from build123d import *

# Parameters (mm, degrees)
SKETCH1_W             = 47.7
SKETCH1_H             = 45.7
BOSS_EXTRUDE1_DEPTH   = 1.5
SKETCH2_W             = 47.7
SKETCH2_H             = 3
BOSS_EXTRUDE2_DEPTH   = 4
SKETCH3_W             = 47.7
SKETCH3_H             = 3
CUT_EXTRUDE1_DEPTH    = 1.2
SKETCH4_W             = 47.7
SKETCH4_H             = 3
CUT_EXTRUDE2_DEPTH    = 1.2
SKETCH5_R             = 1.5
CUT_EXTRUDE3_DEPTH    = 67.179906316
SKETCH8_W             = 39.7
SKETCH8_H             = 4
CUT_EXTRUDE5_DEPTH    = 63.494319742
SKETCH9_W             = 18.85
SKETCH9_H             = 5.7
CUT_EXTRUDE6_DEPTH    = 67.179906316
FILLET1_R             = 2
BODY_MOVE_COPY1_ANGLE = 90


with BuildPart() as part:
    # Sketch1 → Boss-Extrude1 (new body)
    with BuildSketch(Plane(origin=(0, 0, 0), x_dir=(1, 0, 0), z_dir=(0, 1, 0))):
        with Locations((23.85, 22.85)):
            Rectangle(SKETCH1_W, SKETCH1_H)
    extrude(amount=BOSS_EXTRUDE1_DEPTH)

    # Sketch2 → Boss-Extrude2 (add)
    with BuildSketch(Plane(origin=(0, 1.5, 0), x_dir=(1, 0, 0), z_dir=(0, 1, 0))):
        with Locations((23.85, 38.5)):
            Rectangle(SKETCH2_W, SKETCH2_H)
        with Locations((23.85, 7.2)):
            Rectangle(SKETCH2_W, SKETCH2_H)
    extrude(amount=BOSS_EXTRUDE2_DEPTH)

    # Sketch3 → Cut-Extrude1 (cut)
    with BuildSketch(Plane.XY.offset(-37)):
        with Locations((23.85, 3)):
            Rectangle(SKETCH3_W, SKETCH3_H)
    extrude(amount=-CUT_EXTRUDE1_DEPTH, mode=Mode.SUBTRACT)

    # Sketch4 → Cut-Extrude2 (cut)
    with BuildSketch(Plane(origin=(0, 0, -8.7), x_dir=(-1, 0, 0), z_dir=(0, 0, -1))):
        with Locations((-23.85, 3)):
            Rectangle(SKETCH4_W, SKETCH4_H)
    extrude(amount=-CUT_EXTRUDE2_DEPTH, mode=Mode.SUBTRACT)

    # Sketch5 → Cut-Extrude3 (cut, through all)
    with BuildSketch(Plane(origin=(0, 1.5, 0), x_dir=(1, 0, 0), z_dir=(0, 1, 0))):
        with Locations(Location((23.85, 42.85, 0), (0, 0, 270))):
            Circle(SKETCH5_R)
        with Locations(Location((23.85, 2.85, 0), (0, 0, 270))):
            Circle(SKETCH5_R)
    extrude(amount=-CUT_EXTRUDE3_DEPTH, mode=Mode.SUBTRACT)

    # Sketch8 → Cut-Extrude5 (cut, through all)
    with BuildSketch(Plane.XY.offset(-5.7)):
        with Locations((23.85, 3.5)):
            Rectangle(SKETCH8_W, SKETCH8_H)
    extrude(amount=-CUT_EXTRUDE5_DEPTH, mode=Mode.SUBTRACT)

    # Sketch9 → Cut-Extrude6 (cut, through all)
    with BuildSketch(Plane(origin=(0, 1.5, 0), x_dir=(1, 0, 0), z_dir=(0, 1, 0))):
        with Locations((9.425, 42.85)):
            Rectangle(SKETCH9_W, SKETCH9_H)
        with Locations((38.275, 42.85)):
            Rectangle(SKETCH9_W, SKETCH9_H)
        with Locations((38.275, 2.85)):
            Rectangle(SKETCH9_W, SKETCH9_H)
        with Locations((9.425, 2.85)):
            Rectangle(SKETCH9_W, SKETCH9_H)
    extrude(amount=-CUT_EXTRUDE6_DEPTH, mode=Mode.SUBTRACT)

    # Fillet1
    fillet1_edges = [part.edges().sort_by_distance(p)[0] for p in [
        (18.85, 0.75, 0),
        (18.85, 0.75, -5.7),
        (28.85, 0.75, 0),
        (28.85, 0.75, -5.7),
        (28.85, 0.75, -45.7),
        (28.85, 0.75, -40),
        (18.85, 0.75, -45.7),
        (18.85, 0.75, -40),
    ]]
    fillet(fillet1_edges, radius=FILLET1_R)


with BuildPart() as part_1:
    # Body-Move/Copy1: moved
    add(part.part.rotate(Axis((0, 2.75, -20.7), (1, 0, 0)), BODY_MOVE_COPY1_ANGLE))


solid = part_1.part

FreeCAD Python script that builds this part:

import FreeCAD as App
import Part
import Sketcher
from FreeCAD import Vector
Q = App.Units.Quantity


def edges_at(feature, points):
    """Names of the edges that pass closest to the given points."""
    edges = feature.Shape.Edges
    near = lambda p: min(range(len(edges)), key=lambda i: edges[i].distToShape(Part.Vertex(*p))[0])
    return sorted({f"Edge{near(p) + 1}" for p in points})

doc = App.newDocument("Part")
params = doc.addObject("Spreadsheet::Sheet", "Params")
for row, (alias, value) in enumerate([
    ("sketch1_width", "47.7 mm"),
    ("sketch1_height", "45.7 mm"),
    ("pad1_length", "1.5 mm"),
    ("sketch2_height", "3 mm"),
    ("sketch2_width", "47.7 mm"),
    ("pad2_length", "4 mm"),
    ("sketch3_height", "3 mm"),
    ("sketch3_width", "47.7 mm"),
    ("pocket1_length", "1.2 mm"),
    ("sketch4_height", "3 mm"),
    ("sketch4_width", "47.7 mm"),
    ("pocket2_length", "1.2 mm"),
    ("sketch5_diameter", "3 mm"),
    ("sketch6_height", "4 mm"),
    ("sketch6_width", "39.7 mm"),
    ("sketch7_height", "5.7 mm"),
    ("sketch7_width", "18.85 mm"),
    ("fillet_radius", "2 mm"),
], start=1):
    params.set(f"A{row}", alias)
    params.set(f"B{row}", "=" + value)
    params.setAlias(f"B{row}", alias)

body = doc.addObject("PartDesign::Body", "Body")

# Sketch on XZ plane
sketch1 = doc.addObject("Sketcher::SketchObject", "Sketch")
body.addObject(sketch1)
sketch1.AttachmentSupport = (doc.XZ_Plane, [""])
sketch1.MapMode = "FlatFace"
sketch1.addGeometry(Part.LineSegment(Vector(0, -46, 0), Vector(0, 0, 0)), False)
sketch1.addGeometry(Part.LineSegment(Vector(0, 0, 0), Vector(48, 0, 0)), False)
sketch1.addGeometry(Part.LineSegment(Vector(48, 0, 0), Vector(48, -46, 0)), False)
sketch1.addGeometry(Part.LineSegment(Vector(48, -46, 0), Vector(0, -46, 0)), False)
sketch1.addConstraint(Sketcher.Constraint("Coincident", 0, 2, 1, 1))
sketch1.addConstraint(Sketcher.Constraint("Coincident", 1, 2, 2, 1))
sketch1.addConstraint(Sketcher.Constraint("Coincident", 2, 2, 3, 1))
sketch1.addConstraint(Sketcher.Constraint("Coincident", 3, 2, 0, 1))
sketch1.addConstraint(Sketcher.Constraint("Vertical", 0))
sketch1.addConstraint(Sketcher.Constraint("Horizontal", 1))
sketch1.addConstraint(Sketcher.Constraint("Vertical", 2))
sketch1.addConstraint(Sketcher.Constraint("Horizontal", 3))
sketch1.addConstraint(Sketcher.Constraint("Coincident", 0, 2, -1, 1))
sketch1.addConstraint(Sketcher.Constraint("DistanceX", 1, 1, 1, 2, Q("47.7 mm")))
sketch1.addConstraint(Sketcher.Constraint("DistanceY", 0, 1, 0, 2, Q("45.7 mm")))
sketch1.setExpression("Constraints[9]", "Params.sketch1_width")
sketch1.setExpression("Constraints[10]", "Params.sketch1_height")
pad1 = doc.addObject("PartDesign::Pad", "Pad")
body.addObject(pad1)
pad1.Profile = sketch1
pad1.setExpression("Length", "Params.pad1_length")
pad1.Reversed = True

# Sketch on XZ plane
sketch2 = doc.addObject("Sketcher::SketchObject", "Sketch001")
body.addObject(sketch2)
sketch2.AttachmentSupport = (doc.XZ_Plane, [""])
sketch2.MapMode = "FlatFace"
sketch2.AttachmentOffset = App.Placement(Vector(0, 0, -1.5), App.Rotation())
sketch2.addGeometry(Part.LineSegment(Vector(0, -40, 0), Vector(0, -37, 0)), False)
sketch2.addGeometry(Part.LineSegment(Vector(0, -37, 0), Vector(47.7, -37, 0)), False)
sketch2.addGeometry(Part.LineSegment(Vector(47.7, -37, 0), Vector(47.7, -40, 0)), False)
sketch2.addGeometry(Part.LineSegment(Vector(47.7, -40, 0), Vector(0, -40, 0)), False)
sketch2.addGeometry(Part.LineSegment(Vector(0, -8.7, 0), Vector(0, -5.7, 0)), False)
sketch2.addGeometry(Part.LineSegment(Vector(0, -5.7, 0), Vector(47.7, -5.7, 0)), False)
sketch2.addGeometry(Part.LineSegment(Vector(47.7, -5.7, 0), Vector(47.7, -8.7, 0)), False)
sketch2.addGeometry(Part.LineSegment(Vector(47.7, -8.7, 0), Vector(0, -8.7, 0)), False)
sketch2.addConstraint(Sketcher.Constraint("Coincident", 0, 2, 1, 1))
sketch2.addConstraint(Sketcher.Constraint("Coincident", 1, 2, 2, 1))
sketch2.addConstraint(Sketcher.Constraint("Coincident", 2, 2, 3, 1))
sketch2.addConstraint(Sketcher.Constraint("Coincident", 3, 2, 0, 1))
sketch2.addConstraint(Sketcher.Constraint("Coincident", 4, 2, 5, 1))
sketch2.addConstraint(Sketcher.Constraint("Coincident", 5, 2, 6, 1))
sketch2.addConstraint(Sketcher.Constraint("Coincident", 6, 2, 7, 1))
sketch2.addConstraint(Sketcher.Constraint("Coincident", 7, 2, 4, 1))
sketch2.addConstraint(Sketcher.Constraint("Vertical", 0))
sketch2.addConstraint(Sketcher.Constraint("Horizontal", 1))
sketch2.addConstraint(Sketcher.Constraint("Vertical", 2))
sketch2.addConstraint(Sketcher.Constraint("Horizontal", 3))
sketch2.addConstraint(Sketcher.Constraint("Vertical", 4))
sketch2.addConstraint(Sketcher.Constraint("Horizontal", 5))
sketch2.addConstraint(Sketcher.Constraint("Vertical", 6))
sketch2.addConstraint(Sketcher.Constraint("Horizontal", 7))
sketch2.addConstraint(Sketcher.Constraint("PointOnObject", 0, 2, -2))
sketch2.addConstraint(Sketcher.Constraint("PointOnObject", 4, 2, -2))
sketch2.addConstraint(Sketcher.Constraint("Vertical", 2, 2, 5, 2))
sketch2.addConstraint(Sketcher.Constraint("Equal", 2, 4))
sketch2.addConstraint(Sketcher.Constraint("DistanceY", 0, 1, 0, 2, Q("3 mm")))
sketch2.addConstraint(Sketcher.Constraint("DistanceX", 1, 1, 1, 2, Q("47.7 mm")))
sketch2.addConstraint(Sketcher.Constraint("DistanceY", 0, 2, -1, 1, Q("37 mm")))
sketch2.addConstraint(Sketcher.Constraint("DistanceY", 4, 2, -1, 1, Q("5.7 mm")))
sketch2.setExpression("Constraints[20]", "Params.sketch2_height")
sketch2.setExpression("Constraints[21]", "Params.sketch2_width")
pad2 = doc.addObject("PartDesign::Pad", "Pad001")
body.addObject(pad2)
pad2.Profile = sketch2
pad2.setExpression("Length", "Params.pad2_length")
pad2.Reversed = True

# Sketch on XY plane
sketch3 = doc.addObject("Sketcher::SketchObject", "Sketch002")
body.addObject(sketch3)
sketch3.AttachmentSupport = (doc.XY_Plane, [""])
sketch3.MapMode = "FlatFace"
sketch3.AttachmentOffset = App.Placement(Vector(0, 0, -37), App.Rotation())
sketch3.addGeometry(Part.LineSegment(Vector(0, 4.5, 0), Vector(0, 1.5, 0)), False)
sketch3.addGeometry(Part.LineSegment(Vector(0, 1.5, 0), Vector(47.7, 1.5, 0)), False)
sketch3.addGeometry(Part.LineSegment(Vector(47.7, 1.5, 0), Vector(47.7, 4.5, 0)), False)
sketch3.addGeometry(Part.LineSegment(Vector(47.7, 4.5, 0), Vector(0, 4.5, 0)), False)
sketch3.addConstraint(Sketcher.Constraint("Coincident", 0, 2, 1, 1))
sketch3.addConstraint(Sketcher.Constraint("Coincident", 1, 2, 2, 1))
sketch3.addConstraint(Sketcher.Constraint("Coincident", 2, 2, 3, 1))
sketch3.addConstraint(Sketcher.Constraint("Coincident", 3, 2, 0, 1))
sketch3.addConstraint(Sketcher.Constraint("Vertical", 0))
sketch3.addConstraint(Sketcher.Constraint("Horizontal", 1))
sketch3.addConstraint(Sketcher.Constraint("Vertical", 2))
sketch3.addConstraint(Sketcher.Constraint("Horizontal", 3))
sketch3.addConstraint(Sketcher.Constraint("PointOnObject", 0, 2, -2))
sketch3.addConstraint(Sketcher.Constraint("DistanceY", 0, 2, 0, 1, Q("3 mm")))
sketch3.addConstraint(Sketcher.Constraint("DistanceX", 1, 1, 1, 2, Q("47.7 mm")))
sketch3.addConstraint(Sketcher.Constraint("DistanceY", -1, 1, 0, 2, Q("1.5 mm")))
sketch3.setExpression("Constraints[9]", "Params.sketch3_height")
sketch3.setExpression("Constraints[10]", "Params.sketch3_width")
pocket1 = doc.addObject("PartDesign::Pocket", "Pocket")
body.addObject(pocket1)
pocket1.Profile = sketch3
pocket1.setExpression("Length", "Params.pocket1_length")

# Sketch on XY plane
sketch4 = doc.addObject("Sketcher::SketchObject", "Sketch003")
body.addObject(sketch4)
sketch4.AttachmentSupport = (doc.XY_Plane, [""])
sketch4.MapMode = "FlatFace"
sketch4.AttachmentOffset = App.Placement(Vector(0, 0, -8.7), App.Rotation())
sketch4.addGeometry(Part.LineSegment(Vector(47.7, 4.5, 0), Vector(47.7, 1.5, 0)), False)
sketch4.addGeometry(Part.LineSegment(Vector(47.7, 1.5, 0), Vector(0, 1.5, 0)), False)
sketch4.addGeometry(Part.LineSegment(Vector(0, 1.5, 0), Vector(0, 4.5, 0)), False)
sketch4.addGeometry(Part.LineSegment(Vector(0, 4.5, 0), Vector(47.7, 4.5, 0)), False)
sketch4.addConstraint(Sketcher.Constraint("Coincident", 0, 2, 1, 1))
sketch4.addConstraint(Sketcher.Constraint("Coincident", 1, 2, 2, 1))
sketch4.addConstraint(Sketcher.Constraint("Coincident", 2, 2, 3, 1))
sketch4.addConstraint(Sketcher.Constraint("Coincident", 3, 2, 0, 1))
sketch4.addConstraint(Sketcher.Constraint("Vertical", 0))
sketch4.addConstraint(Sketcher.Constraint("Horizontal", 1))
sketch4.addConstraint(Sketcher.Constraint("Vertical", 2))
sketch4.addConstraint(Sketcher.Constraint("Horizontal", 3))
sketch4.addConstraint(Sketcher.Constraint("PointOnObject", 1, 2, -2))
sketch4.addConstraint(Sketcher.Constraint("DistanceY", 0, 2, 0, 1, Q("3 mm")))
sketch4.addConstraint(Sketcher.Constraint("DistanceX", 1, 2, 1, 1, Q("47.7 mm")))
sketch4.addConstraint(Sketcher.Constraint("DistanceY", -1, 1, 0, 2, Q("1.5 mm")))
sketch4.setExpression("Constraints[9]", "Params.sketch4_height")
sketch4.setExpression("Constraints[10]", "Params.sketch4_width")
pocket2 = doc.addObject("PartDesign::Pocket", "Pocket001")
body.addObject(pocket2)
pocket2.Profile = sketch4
pocket2.setExpression("Length", "Params.pocket2_length")
pocket2.Reversed = True

# Sketch on XZ plane
sketch5 = doc.addObject("Sketcher::SketchObject", "Sketch004")
body.addObject(sketch5)
sketch5.AttachmentSupport = (doc.XZ_Plane, [""])
sketch5.MapMode = "FlatFace"
sketch5.AttachmentOffset = App.Placement(Vector(0, 0, -1.5), App.Rotation())
sketch5.addGeometry(Part.Circle(Vector(23.9, -42.9, 0), Vector(0, 0, 1), 1.5), False)
sketch5.addGeometry(Part.Circle(Vector(23.9, -2.9, 0), Vector(0, 0, 1), 1.5), False)
sketch5.addConstraint(Sketcher.Constraint("Equal", 0, 1))
sketch5.addConstraint(Sketcher.Constraint("Vertical", 0, 3, 1, 3))
sketch5.addConstraint(Sketcher.Constraint("Diameter", 0, Q("3 mm")))
sketch5.addConstraint(Sketcher.Constraint("DistanceY", 0, 3, 1, 3, Q("40 mm")))
sketch5.addConstraint(Sketcher.Constraint("DistanceX", -1, 1, 0, 3, Q("23.85 mm")))
sketch5.addConstraint(Sketcher.Constraint("DistanceY", 0, 3, -1, 1, Q("42.85 mm")))
sketch5.setExpression("Constraints[2]", "Params.sketch5_diameter")
pocket3 = doc.addObject("PartDesign::Pocket", "Pocket002")
body.addObject(pocket3)
pocket3.Profile = sketch5
pocket3.Type = "ThroughAll"
pocket3.Reversed = True

# Sketch on XY plane
sketch6 = doc.addObject("Sketcher::SketchObject", "Sketch005")
body.addObject(sketch6)
sketch6.AttachmentSupport = (doc.XY_Plane, [""])
sketch6.MapMode = "FlatFace"
sketch6.AttachmentOffset = App.Placement(Vector(0, 0, -5.7), App.Rotation())
sketch6.addGeometry(Part.LineSegment(Vector(4, 5.5, 0), Vector(4, 1.5, 0)), False)
sketch6.addGeometry(Part.LineSegment(Vector(4, 1.5, 0), Vector(43.7, 1.5, 0)), False)
sketch6.addGeometry(Part.LineSegment(Vector(43.7, 1.5, 0), Vector(43.7, 5.5, 0)), False)
sketch6.addGeometry(Part.LineSegment(Vector(43.7, 5.5, 0), Vector(4, 5.5, 0)), False)
sketch6.addConstraint(Sketcher.Constraint("Coincident", 0, 2, 1, 1))
sketch6.addConstraint(Sketcher.Constraint("Coincident", 1, 2, 2, 1))
sketch6.addConstraint(Sketcher.Constraint("Coincident", 2, 2, 3, 1))
sketch6.addConstraint(Sketcher.Constraint("Coincident", 3, 2, 0, 1))
sketch6.addConstraint(Sketcher.Constraint("Vertical", 0))
sketch6.addConstraint(Sketcher.Constraint("Horizontal", 1))
sketch6.addConstraint(Sketcher.Constraint("Vertical", 2))
sketch6.addConstraint(Sketcher.Constraint("Horizontal", 3))
sketch6.addConstraint(Sketcher.Constraint("DistanceY", 0, 2, 0, 1, Q("4 mm")))
sketch6.addConstraint(Sketcher.Constraint("DistanceX", 1, 1, 1, 2, Q("39.7 mm")))
sketch6.addConstraint(Sketcher.Constraint("DistanceX", -1, 1, 0, 2, Q("4 mm")))
sketch6.addConstraint(Sketcher.Constraint("DistanceY", -1, 1, 0, 2, Q("1.5 mm")))
sketch6.setExpression("Constraints[8]", "Params.sketch6_height")
sketch6.setExpression("Constraints[9]", "Params.sketch6_width")
pocket4 = doc.addObject("PartDesign::Pocket", "Pocket003")
body.addObject(pocket4)
pocket4.Profile = sketch6
pocket4.Type = "ThroughAll"

# Sketch on XZ plane
sketch7 = doc.addObject("Sketcher::SketchObject", "Sketch006")
body.addObject(sketch7)
sketch7.AttachmentSupport = (doc.XZ_Plane, [""])
sketch7.MapMode = "FlatFace"
sketch7.AttachmentOffset = App.Placement(Vector(0, 0, -1.5), App.Rotation())
sketch7.addGeometry(Part.LineSegment(Vector(0, -46, 0), Vector(0, -40, 0)), False)
sketch7.addGeometry(Part.LineSegment(Vector(0, -40, 0), Vector(19, -40, 0)), False)
sketch7.addGeometry(Part.LineSegment(Vector(19, -40, 0), Vector(19, -46, 0)), False)
sketch7.addGeometry(Part.LineSegment(Vector(19, -46, 0), Vector(0, -46, 0)), False)
sketch7.addGeometry(Part.LineSegment(Vector(29, -46, 0), Vector(29, -40, 0)), False)
sketch7.addGeometry(Part.LineSegment(Vector(29, -40, 0), Vector(48, -40, 0)), False)
sketch7.addGeometry(Part.LineSegment(Vector(48, -40, 0), Vector(48, -46, 0)), False)
sketch7.addGeometry(Part.LineSegment(Vector(48, -46, 0), Vector(29, -46, 0)), False)
sketch7.addGeometry(Part.LineSegment(Vector(29, -6, 0), Vector(29, 0, 0)), False)
sketch7.addGeometry(Part.LineSegment(Vector(29, 0, 0), Vector(48, 0, 0)), False)
sketch7.addGeometry(Part.LineSegment(Vector(48, 0, 0), Vector(48, -6, 0)), False)
sketch7.addGeometry(Part.LineSegment(Vector(48, -6, 0), Vector(29, -6, 0)), False)
sketch7.addGeometry(Part.LineSegment(Vector(0, -6, 0), Vector(0, 0, 0)), False)
sketch7.addGeometry(Part.LineSegment(Vector(0, 0, 0), Vector(19, 0, 0)), False)
sketch7.addGeometry(Part.LineSegment(Vector(19, 0, 0), Vector(19, -6, 0)), False)
sketch7.addGeometry(Part.LineSegment(Vector(19, -6, 0), Vector(0, -6, 0)), False)
sketch7.addConstraint(Sketcher.Constraint("Coincident", 0, 2, 1, 1))
sketch7.addConstraint(Sketcher.Constraint("Coincident", 1, 2, 2, 1))
sketch7.addConstraint(Sketcher.Constraint("Coincident", 2, 2, 3, 1))
sketch7.addConstraint(Sketcher.Constraint("Coincident", 3, 2, 0, 1))
sketch7.addConstraint(Sketcher.Constraint("Coincident", 4, 2, 5, 1))
sketch7.addConstraint(Sketcher.Constraint("Coincident", 5, 2, 6, 1))
sketch7.addConstraint(Sketcher.Constraint("Coincident", 6, 2, 7, 1))
sketch7.addConstraint(Sketcher.Constraint("Coincident", 7, 2, 4, 1))
sketch7.addConstraint(Sketcher.Constraint("Coincident", 8, 2, 9, 1))
sketch7.addConstraint(Sketcher.Constraint("Coincident", 9, 2, 10, 1))
sketch7.addConstraint(Sketcher.Constraint("Coincident", 10, 2, 11, 1))
sketch7.addConstraint(Sketcher.Constraint("Coincident", 11, 2, 8, 1))
sketch7.addConstraint(Sketcher.Constraint("Coincident", 12, 2, 13, 1))
sketch7.addConstraint(Sketcher.Constraint("Coincident", 13, 2, 14, 1))
sketch7.addConstraint(Sketcher.Constraint("Coincident", 14, 2, 15, 1))
sketch7.addConstraint(Sketcher.Constraint("Coincident", 15, 2, 12, 1))
sketch7.addConstraint(Sketcher.Constraint("Vertical", 0))
sketch7.addConstraint(Sketcher.Constraint("Horizontal", 1))
sketch7.addConstraint(Sketcher.Constraint("Vertical", 2))
sketch7.addConstraint(Sketcher.Constraint("Horizontal", 3))
sketch7.addConstraint(Sketcher.Constraint("Vertical", 4))
sketch7.addConstraint(Sketcher.Constraint("Horizontal", 5))
sketch7.addConstraint(Sketcher.Constraint("Vertical", 6))
sketch7.addConstraint(Sketcher.Constraint("Horizontal", 7))
sketch7.addConstraint(Sketcher.Constraint("Vertical", 8))
sketch7.addConstraint(Sketcher.Constraint("Horizontal", 9))
sketch7.addConstraint(Sketcher.Constraint("Vertical", 10))
sketch7.addConstraint(Sketcher.Constraint("Horizontal", 11))
sketch7.addConstraint(Sketcher.Constraint("Vertical", 12))
sketch7.addConstraint(Sketcher.Constraint("Horizontal", 13))
sketch7.addConstraint(Sketcher.Constraint("Vertical", 14))
sketch7.addConstraint(Sketcher.Constraint("Horizontal", 15))
sketch7.addConstraint(Sketcher.Constraint("Coincident", 12, 2, -1, 1))
sketch7.addConstraint(Sketcher.Constraint("PointOnObject", 0, 2, -2))
sketch7.addConstraint(Sketcher.Constraint("PointOnObject", 8, 2, -1))
sketch7.addConstraint(Sketcher.Constraint("Horizontal", 1, 2, 4, 2))
sketch7.addConstraint(Sketcher.Constraint("Horizontal", 3, 2, 6, 2))
sketch7.addConstraint(Sketcher.Constraint("Horizontal", 11, 2, 14, 2))
sketch7.addConstraint(Sketcher.Constraint("Vertical", 7, 2, 8, 2))
sketch7.addConstraint(Sketcher.Constraint("Vertical", 6, 2, 9, 2))
sketch7.addConstraint(Sketcher.Constraint("Vertical", 2, 2, 13, 2))
sketch7.addConstraint(Sketcher.Constraint("Equal", 3, 5))
sketch7.addConstraint(Sketcher.Constraint("Equal", 6, 8))
sketch7.addConstraint(Sketcher.Constraint("DistanceY", 0, 1, 0, 2, Q("5.7 mm")))
sketch7.addConstraint(Sketcher.Constraint("DistanceY", 0, 2, -1, 1, Q("40 mm")))
sketch7.addConstraint(Sketcher.Constraint("DistanceX", 1, 2, 4, 2, Q("10 mm")))
sketch7.addConstraint(Sketcher.Constraint("DistanceX", 1, 1, 1, 2, Q("18.85 mm")))
sketch7.setExpression("Constraints[43]", "Params.sketch7_height")
sketch7.setExpression("Constraints[46]", "Params.sketch7_width")
pocket5 = doc.addObject("PartDesign::Pocket", "Pocket004")
body.addObject(pocket5)
pocket5.Profile = sketch7
pocket5.Type = "ThroughAll"
pocket5.Reversed = True
doc.recompute()

fillet = doc.addObject("PartDesign::Fillet", "Fillet")
body.addObject(fillet)
fillet.Base = (pocket5, edges_at(pocket5, [
    (18.85, 0.75, 0),
    (18.85, 0.75, -5.7),
    (28.85, 0.75, 0),
    (28.85, 0.75, -5.7),
    (28.85, 0.75, -45.7),
    (28.85, 0.75, -40),
    (18.85, 0.75, -45.7),
    (18.85, 0.75, -40),
]))
fillet.setExpression("Radius", "Params.fillet_radius")
body2 = doc.addObject("PartDesign::Body", "Body001")
doc.recompute()

body.Placement = App.Placement(Vector(0, -17.95, -23.45), App.Rotation(Vector(1, 0, 0), 90))
boolean = doc.addObject("PartDesign::Boolean", "Boolean")
body2.addObject(boolean)
boolean.Type = "Fuse"
boolean.addObjects([body])

doc.recompute()
